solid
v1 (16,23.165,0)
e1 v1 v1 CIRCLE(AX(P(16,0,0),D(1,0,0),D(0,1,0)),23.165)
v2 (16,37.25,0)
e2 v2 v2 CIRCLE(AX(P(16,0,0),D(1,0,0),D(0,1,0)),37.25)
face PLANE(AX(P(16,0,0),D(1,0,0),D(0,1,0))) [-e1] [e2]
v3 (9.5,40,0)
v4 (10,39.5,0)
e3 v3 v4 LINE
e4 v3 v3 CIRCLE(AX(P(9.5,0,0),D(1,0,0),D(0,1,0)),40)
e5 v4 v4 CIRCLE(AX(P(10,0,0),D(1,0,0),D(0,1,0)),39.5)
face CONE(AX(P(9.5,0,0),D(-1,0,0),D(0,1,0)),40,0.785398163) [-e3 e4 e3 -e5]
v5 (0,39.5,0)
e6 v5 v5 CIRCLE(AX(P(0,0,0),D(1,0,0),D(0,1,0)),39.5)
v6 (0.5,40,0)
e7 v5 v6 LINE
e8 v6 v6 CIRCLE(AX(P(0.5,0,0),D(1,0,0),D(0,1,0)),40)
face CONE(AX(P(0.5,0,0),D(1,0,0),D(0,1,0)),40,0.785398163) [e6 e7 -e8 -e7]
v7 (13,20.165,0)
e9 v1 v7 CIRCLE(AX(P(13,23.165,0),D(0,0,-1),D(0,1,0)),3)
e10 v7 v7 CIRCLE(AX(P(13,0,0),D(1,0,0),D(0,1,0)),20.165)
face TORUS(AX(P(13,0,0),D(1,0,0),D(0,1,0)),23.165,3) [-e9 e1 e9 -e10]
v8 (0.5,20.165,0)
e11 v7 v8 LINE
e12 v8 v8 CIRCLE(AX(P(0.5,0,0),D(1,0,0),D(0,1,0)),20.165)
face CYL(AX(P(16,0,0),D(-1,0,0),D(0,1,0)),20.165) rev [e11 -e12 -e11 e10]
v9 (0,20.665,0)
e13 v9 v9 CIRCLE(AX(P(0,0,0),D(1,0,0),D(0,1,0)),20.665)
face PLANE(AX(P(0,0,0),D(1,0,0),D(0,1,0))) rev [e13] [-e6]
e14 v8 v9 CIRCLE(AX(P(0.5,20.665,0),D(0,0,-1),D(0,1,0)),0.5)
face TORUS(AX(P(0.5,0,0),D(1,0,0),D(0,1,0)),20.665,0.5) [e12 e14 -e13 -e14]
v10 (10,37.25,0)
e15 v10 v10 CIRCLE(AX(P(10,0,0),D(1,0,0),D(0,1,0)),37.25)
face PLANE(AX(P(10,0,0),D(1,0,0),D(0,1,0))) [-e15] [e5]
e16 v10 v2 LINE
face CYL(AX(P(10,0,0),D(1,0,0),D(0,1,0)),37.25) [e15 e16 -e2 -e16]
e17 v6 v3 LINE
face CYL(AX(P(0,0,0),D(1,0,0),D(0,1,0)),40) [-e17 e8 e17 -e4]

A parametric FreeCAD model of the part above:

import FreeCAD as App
import Part
import Sketcher
Q = App.Units.Quantity


def edges_at(feature, points):
    """Names of the edges that pass closest to the given points."""
    edges = feature.Shape.Edges
    near = lambda p: min(range(len(edges)), key=lambda i: edges[i].distToShape(Part.Vertex(*p))[0])
    return sorted({f"Edge{near(p) + 1}" for p in points})

doc = App.newDocument("Part")
body = doc.addObject("PartDesign::Body", "Body")

# Sketch on XY plane
sketch1 = body.newObject("Sketcher::SketchObject", "Sketch")
sketch1.AttachmentSupport = (doc.getObject("XY_Plane"), [""])
sketch1.MapMode = "FlatFace"
sketch1.addGeometry(Part.LineSegment(App.Vector(0, 40, 0), App.Vector(0, 20.2, 0)), False)
sketch1.addGeometry(Part.LineSegment(App.Vector(0, 20.2, 0), App.Vector(16, 20.2, 0)), False)
sketch1.addGeometry(Part.LineSegment(App.Vector(16, 20.2, 0), App.Vector(16, 37.2, 0)), False)
sketch1.addGeometry(Part.LineSegment(App.Vector(16, 37.2, 0), App.Vector(10, 37.2, 0)), False)
sketch1.addGeometry(Part.LineSegment(App.Vector(10, 37.2, 0), App.Vector(10, 40, 0)), False)
sketch1.addGeometry(Part.LineSegment(App.Vector(10, 40, 0), App.Vector(0, 40, 0)), False)
sketch1.addConstraint(Sketcher.Constraint("Coincident", 0, 2, 1, 1))
sketch1.addConstraint(Sketcher.Constraint("Coincident", 1, 2, 2, 1))
sketch1.addConstraint(Sketcher.Constraint("Coincident", 2, 2, 3, 1))
sketch1.addConstraint(Sketcher.Constraint("Coincident", 3, 2, 4, 1))
sketch1.addConstraint(Sketcher.Constraint("Coincident", 4, 2, 5, 1))
sketch1.addConstraint(Sketcher.Constraint("Coincident", 5, 2, 0, 1))
sketch1.addConstraint(Sketcher.Constraint("Vertical", 0))
sketch1.addConstraint(Sketcher.Constraint("Horizontal", 1))
sketch1.addConstraint(Sketcher.Constraint("Vertical", 2))
sketch1.addConstraint(Sketcher.Constraint("Horizontal", 3))
sketch1.addConstraint(Sketcher.Constraint("Vertical", 4))
sketch1.addConstraint(Sketcher.Constraint("Horizontal", 5))
sketch1.addConstraint(Sketcher.Constraint("PointOnObject", 0, 2, -2))
sketch1.addConstraint(Sketcher.Constraint("DistanceX", 1, 1, 1, 2, Q("16 mm")))
sketch1.addConstraint(Sketcher.Constraint("DistanceX", 5, 2, 5, 1, Q("10 mm")))
sketch1.addConstraint(Sketcher.Constraint("DistanceY", -1, 1, 4, 2, Q("40 mm")))
sketch1.addConstraint(Sketcher.Constraint("DistanceY", 4, 1, 4, 2, Q("2.75 mm")))
sketch1.addConstraint(Sketcher.Constraint("DistanceY", 0, 2, 0, 1, Q("19.835 mm")))
revolution = body.newObject("PartDesign::Revolution", "Revolution")
revolution.Profile = sketch1
revolution.ReferenceAxis = (sketch1, ["H_Axis"])
revolution.Angle = 360
doc.recompute()

fillet = body.newObject("PartDesign::Fillet", "Fillet")
fillet.Base = (revolution, edges_at(revolution, [(16, -20.165, 0)]))
fillet.Radius = 3
doc.recompute()

fillet2 = body.newObject("PartDesign::Fillet", "Fillet001")
fillet2.Base = (fillet, edges_at(fillet, [(0, -20.165, 0)]))
fillet2.Radius = 0.5
doc.recompute()

chamfer = body.newObject("PartDesign::Chamfer", "Chamfer")
chamfer.Base = (fillet2, edges_at(fillet2, [(0, -40, 0), (10, -40, 0)]))
chamfer.Size = 0.5

doc.recompute()
